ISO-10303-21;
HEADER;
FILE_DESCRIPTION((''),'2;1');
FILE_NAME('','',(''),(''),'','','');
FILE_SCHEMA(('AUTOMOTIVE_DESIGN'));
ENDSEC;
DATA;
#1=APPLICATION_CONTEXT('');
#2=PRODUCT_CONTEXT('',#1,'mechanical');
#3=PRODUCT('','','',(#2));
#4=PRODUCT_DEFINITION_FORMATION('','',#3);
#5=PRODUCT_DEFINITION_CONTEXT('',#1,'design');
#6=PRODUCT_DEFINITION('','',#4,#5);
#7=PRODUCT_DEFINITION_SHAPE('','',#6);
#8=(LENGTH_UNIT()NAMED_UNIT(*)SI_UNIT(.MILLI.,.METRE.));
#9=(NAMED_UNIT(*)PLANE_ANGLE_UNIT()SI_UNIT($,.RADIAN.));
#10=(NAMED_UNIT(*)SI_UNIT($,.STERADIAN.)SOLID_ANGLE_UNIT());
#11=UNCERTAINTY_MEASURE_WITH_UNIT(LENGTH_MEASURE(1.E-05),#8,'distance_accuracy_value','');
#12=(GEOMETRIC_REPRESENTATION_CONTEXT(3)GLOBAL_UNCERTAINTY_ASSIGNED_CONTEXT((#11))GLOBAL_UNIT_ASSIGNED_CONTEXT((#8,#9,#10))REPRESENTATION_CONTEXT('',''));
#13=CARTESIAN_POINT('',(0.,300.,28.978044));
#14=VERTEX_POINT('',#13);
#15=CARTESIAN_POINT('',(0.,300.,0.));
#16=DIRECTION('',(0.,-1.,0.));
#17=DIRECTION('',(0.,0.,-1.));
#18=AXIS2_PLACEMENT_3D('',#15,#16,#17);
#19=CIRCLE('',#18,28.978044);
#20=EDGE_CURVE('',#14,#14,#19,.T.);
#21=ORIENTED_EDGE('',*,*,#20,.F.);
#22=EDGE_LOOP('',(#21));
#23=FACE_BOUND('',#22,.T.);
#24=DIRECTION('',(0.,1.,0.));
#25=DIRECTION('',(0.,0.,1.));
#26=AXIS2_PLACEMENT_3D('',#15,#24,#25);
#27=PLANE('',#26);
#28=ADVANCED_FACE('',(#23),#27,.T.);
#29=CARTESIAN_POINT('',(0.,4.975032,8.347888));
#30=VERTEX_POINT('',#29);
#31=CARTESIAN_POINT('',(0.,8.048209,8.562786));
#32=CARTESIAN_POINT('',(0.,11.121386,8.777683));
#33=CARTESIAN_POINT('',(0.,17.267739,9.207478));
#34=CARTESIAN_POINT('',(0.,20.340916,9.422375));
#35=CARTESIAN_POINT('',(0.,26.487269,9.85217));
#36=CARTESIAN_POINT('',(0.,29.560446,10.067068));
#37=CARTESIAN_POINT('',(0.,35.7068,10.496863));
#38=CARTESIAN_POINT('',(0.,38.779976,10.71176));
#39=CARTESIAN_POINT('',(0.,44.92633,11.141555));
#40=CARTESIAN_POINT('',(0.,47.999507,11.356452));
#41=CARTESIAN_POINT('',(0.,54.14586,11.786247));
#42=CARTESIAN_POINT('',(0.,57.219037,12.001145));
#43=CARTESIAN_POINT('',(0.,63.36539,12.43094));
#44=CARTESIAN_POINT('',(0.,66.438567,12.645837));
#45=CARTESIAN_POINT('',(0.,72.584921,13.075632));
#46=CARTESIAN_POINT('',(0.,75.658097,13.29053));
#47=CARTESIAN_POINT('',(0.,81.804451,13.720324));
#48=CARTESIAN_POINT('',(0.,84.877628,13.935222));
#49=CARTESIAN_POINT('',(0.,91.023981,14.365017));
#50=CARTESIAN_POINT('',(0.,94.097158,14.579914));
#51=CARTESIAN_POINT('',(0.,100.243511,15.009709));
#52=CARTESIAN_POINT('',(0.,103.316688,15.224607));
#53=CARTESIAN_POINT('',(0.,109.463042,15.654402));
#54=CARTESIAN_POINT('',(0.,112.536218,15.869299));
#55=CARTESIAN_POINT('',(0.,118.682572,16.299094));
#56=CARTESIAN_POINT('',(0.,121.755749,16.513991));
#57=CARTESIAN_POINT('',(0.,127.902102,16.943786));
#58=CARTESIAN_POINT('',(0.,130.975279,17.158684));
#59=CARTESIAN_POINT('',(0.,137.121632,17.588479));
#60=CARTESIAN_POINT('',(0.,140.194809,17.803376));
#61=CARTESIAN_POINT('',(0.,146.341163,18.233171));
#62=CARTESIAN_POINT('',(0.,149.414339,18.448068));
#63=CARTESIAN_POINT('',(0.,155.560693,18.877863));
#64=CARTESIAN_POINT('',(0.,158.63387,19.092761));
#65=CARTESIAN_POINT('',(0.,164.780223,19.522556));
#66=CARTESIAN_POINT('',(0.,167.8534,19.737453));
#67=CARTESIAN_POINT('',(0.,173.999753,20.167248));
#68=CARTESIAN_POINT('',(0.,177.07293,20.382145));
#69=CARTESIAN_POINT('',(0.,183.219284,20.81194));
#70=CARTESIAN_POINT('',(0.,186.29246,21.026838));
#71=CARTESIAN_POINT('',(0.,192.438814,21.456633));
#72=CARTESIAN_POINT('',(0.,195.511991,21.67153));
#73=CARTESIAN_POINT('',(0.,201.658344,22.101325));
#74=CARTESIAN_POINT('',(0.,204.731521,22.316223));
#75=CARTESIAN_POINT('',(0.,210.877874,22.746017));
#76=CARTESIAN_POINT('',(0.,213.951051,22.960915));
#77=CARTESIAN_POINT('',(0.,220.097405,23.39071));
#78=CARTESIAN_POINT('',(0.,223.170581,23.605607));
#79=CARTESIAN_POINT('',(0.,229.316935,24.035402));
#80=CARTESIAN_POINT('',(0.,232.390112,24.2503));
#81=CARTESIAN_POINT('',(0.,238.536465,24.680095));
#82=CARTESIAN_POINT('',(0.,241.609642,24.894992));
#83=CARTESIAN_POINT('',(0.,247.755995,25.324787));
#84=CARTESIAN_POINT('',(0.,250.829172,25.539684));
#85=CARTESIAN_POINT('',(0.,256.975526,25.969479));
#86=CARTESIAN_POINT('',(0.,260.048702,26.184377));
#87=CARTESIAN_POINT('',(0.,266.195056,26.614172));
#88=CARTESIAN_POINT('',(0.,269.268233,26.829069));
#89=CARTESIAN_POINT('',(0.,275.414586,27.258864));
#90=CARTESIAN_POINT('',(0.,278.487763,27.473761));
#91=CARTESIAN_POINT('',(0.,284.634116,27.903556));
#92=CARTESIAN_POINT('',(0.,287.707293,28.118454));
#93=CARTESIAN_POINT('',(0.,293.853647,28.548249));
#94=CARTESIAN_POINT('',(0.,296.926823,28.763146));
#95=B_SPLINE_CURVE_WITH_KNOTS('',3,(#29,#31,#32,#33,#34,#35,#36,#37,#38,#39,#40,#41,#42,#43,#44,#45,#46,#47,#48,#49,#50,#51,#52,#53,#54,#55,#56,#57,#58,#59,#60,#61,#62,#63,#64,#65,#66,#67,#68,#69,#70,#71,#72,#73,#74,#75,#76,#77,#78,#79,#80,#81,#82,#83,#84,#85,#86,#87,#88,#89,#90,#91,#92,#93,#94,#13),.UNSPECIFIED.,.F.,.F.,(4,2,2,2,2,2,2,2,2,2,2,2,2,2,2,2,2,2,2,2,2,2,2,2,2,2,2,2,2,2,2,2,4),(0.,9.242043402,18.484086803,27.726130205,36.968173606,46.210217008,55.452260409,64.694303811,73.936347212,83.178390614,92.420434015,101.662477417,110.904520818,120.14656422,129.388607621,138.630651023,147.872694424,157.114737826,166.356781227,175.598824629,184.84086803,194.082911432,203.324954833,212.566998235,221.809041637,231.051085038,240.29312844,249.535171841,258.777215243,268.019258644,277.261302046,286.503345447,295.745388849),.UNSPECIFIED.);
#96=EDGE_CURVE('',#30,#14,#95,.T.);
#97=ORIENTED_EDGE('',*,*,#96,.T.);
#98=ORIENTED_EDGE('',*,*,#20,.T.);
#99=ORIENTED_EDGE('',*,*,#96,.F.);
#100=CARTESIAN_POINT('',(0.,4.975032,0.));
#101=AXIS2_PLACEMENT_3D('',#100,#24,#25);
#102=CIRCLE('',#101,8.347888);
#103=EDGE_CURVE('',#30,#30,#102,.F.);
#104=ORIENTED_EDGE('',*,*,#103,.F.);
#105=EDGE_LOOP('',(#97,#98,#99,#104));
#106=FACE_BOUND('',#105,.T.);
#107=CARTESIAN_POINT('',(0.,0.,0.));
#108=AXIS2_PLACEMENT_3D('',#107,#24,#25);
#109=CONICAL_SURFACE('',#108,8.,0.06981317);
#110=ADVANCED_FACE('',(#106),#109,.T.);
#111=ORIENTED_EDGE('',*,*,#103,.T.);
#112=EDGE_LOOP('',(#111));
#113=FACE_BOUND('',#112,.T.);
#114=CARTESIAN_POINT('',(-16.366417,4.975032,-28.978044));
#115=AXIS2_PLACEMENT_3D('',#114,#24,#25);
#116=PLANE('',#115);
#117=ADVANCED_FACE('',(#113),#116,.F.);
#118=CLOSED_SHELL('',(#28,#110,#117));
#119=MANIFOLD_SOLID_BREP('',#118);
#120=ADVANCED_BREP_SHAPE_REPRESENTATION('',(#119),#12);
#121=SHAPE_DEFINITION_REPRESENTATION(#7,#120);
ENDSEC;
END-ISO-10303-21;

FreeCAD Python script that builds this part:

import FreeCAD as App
import Part
import Sketcher

V = App.Vector
Q = App.Units.Quantity


def add_polygon(sketch, points):
    """Adds a closed chain of lines whose ends are joined by coincident constraints."""
    first, n = sketch.GeometryCount, len(points)
    for a, b in zip(points, points[1:] + points[:1]):
        sketch.addGeometry(Part.LineSegment(App.Vector(*a, 0), App.Vector(*b, 0)), False)
    for i in range(n):
        sketch.addConstraint(Sketcher.Constraint("Coincident", first + i, 2, first + (i + 1) % n, 1))

doc = App.newDocument("Part")
body = doc.addObject("PartDesign::Body", "Body")

# Sketch on XY plane
sketch1 = body.newObject("Sketcher::SketchObject", "Sketch")
sketch1.AttachmentSupport = (doc.getObject("XY_Plane"), [""])
sketch1.MapMode = "FlatFace"
add_polygon(sketch1, [(0, 300), (0, 0), (8, 0), (29, 300)])  # lines 0-3
sketch1.addConstraint(Sketcher.Constraint("Vertical", 0))
sketch1.addConstraint(Sketcher.Constraint("Horizontal", 1))
sketch1.addConstraint(Sketcher.Constraint("Horizontal", 3))
sketch1.addConstraint(Sketcher.Constraint("Coincident", 0, 2, -1, 1))
sketch1.addConstraint(Sketcher.Constraint("DistanceX", 1, 1, 1, 2, Q("8 mm")))
sketch1.addConstraint(Sketcher.Constraint("DistanceY", 0, 2, 0, 1, Q("300 mm")))
sketch1.addConstraint(Sketcher.Constraint("Angle", 2, Q("86 deg")))
revolution = body.newObject("PartDesign::Revolution", "Revolution")
revolution.Profile = sketch1
revolution.ReferenceAxis = (sketch1, ["V_Axis"])
revolution.Angle = 360

# Sketch on XY plane
sketch2 = body.newObject("Sketcher::SketchObject", "Sketch001")
sketch2.AttachmentSupport = (doc.getObject("XY_Plane"), [""])
sketch2.MapMode = "FlatFace"
add_polygon(sketch2, [(-16, 5), (-16, 0), (13, 0), (13, 5)])  # lines 0-3
sketch2.addConstraint(Sketcher.Constraint("Vertical", 0))
sketch2.addConstraint(Sketcher.Constraint("Horizontal", 1))
sketch2.addConstraint(Sketcher.Constraint("Vertical", 2))
sketch2.addConstraint(Sketcher.Constraint("Horizontal", 3))
sketch2.addConstraint(Sketcher.Constraint("DistanceY", 0, 2, 0, 1, Q("5 mm")))
sketch2.addConstraint(Sketcher.Constraint("DistanceX", 1, 1, 1, 2, Q("29.225395 mm")))
sketch2.addConstraint(Sketcher.Constraint("DistanceX", -1, 1, 1, 2, Q("12.858978 mm")))
sketch2.addConstraint(Sketcher.Constraint("DistanceY", 0, 2, -1, 1, Q("0.024968 mm")))
pocket1 = body.newObject("PartDesign::Pocket", "Pocket")
pocket1.Profile = sketch2
pocket1.Type = "ThroughAll"
pocket1.Midplane = True

doc.recompute()
